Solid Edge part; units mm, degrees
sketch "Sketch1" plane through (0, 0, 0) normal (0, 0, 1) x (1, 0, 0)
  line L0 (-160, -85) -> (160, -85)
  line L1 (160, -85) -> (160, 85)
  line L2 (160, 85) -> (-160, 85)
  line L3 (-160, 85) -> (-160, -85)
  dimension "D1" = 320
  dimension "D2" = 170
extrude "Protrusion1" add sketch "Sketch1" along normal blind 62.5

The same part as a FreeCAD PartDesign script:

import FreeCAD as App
import Part
import Sketcher
from FreeCAD import Vector


def add_polygon(sketch, points):
    """Adds a closed chain of lines whose ends are joined by coincident constraints."""
    first, n = sketch.GeometryCount, len(points)
    for a, b in zip(points, points[1:] + points[:1]):
        sketch.addGeometry(Part.LineSegment(App.Vector(*a, 0), App.Vector(*b, 0)), False)
    for i in range(n):
        sketch.addConstraint(Sketcher.Constraint("Coincident", first + i, 2, first + (i + 1) % n, 1))

doc = App.newDocument("Part")
body = doc.addObject("PartDesign::Body", "Body")

# Sketch on XY plane
sketch1 = body.newObject("Sketcher::SketchObject", "Sketch")
sketch1.AttachmentSupport = (doc.getObject("XY_Plane"), [""])
sketch1.MapMode = "FlatFace"
add_polygon(sketch1, [(-160, 85), (-160, -85), (160, -85), (160, 85)])  # lines 0-3
sketch1.addConstraint([
    Sketcher.Constraint("Vertical", 0),
    Sketcher.Constraint("Horizontal", 1),
    Sketcher.Constraint("Vertical", 2),
    Sketcher.Constraint("Horizontal", 3),
    Sketcher.Constraint("Symmetric", 0, 2, 2, 2, -1, 1),
    Sketcher.Constraint("DistanceX", 0, 2, -1, 1, 160.0),
    Sketcher.Constraint("DistanceY", 0, 2, 0, 1, 170.0),
])
pad1 = body.newObject("PartDesign::Pad", "Pad")
pad1.Profile = sketch1
pad1.Length = 62.5

doc.recompute()
